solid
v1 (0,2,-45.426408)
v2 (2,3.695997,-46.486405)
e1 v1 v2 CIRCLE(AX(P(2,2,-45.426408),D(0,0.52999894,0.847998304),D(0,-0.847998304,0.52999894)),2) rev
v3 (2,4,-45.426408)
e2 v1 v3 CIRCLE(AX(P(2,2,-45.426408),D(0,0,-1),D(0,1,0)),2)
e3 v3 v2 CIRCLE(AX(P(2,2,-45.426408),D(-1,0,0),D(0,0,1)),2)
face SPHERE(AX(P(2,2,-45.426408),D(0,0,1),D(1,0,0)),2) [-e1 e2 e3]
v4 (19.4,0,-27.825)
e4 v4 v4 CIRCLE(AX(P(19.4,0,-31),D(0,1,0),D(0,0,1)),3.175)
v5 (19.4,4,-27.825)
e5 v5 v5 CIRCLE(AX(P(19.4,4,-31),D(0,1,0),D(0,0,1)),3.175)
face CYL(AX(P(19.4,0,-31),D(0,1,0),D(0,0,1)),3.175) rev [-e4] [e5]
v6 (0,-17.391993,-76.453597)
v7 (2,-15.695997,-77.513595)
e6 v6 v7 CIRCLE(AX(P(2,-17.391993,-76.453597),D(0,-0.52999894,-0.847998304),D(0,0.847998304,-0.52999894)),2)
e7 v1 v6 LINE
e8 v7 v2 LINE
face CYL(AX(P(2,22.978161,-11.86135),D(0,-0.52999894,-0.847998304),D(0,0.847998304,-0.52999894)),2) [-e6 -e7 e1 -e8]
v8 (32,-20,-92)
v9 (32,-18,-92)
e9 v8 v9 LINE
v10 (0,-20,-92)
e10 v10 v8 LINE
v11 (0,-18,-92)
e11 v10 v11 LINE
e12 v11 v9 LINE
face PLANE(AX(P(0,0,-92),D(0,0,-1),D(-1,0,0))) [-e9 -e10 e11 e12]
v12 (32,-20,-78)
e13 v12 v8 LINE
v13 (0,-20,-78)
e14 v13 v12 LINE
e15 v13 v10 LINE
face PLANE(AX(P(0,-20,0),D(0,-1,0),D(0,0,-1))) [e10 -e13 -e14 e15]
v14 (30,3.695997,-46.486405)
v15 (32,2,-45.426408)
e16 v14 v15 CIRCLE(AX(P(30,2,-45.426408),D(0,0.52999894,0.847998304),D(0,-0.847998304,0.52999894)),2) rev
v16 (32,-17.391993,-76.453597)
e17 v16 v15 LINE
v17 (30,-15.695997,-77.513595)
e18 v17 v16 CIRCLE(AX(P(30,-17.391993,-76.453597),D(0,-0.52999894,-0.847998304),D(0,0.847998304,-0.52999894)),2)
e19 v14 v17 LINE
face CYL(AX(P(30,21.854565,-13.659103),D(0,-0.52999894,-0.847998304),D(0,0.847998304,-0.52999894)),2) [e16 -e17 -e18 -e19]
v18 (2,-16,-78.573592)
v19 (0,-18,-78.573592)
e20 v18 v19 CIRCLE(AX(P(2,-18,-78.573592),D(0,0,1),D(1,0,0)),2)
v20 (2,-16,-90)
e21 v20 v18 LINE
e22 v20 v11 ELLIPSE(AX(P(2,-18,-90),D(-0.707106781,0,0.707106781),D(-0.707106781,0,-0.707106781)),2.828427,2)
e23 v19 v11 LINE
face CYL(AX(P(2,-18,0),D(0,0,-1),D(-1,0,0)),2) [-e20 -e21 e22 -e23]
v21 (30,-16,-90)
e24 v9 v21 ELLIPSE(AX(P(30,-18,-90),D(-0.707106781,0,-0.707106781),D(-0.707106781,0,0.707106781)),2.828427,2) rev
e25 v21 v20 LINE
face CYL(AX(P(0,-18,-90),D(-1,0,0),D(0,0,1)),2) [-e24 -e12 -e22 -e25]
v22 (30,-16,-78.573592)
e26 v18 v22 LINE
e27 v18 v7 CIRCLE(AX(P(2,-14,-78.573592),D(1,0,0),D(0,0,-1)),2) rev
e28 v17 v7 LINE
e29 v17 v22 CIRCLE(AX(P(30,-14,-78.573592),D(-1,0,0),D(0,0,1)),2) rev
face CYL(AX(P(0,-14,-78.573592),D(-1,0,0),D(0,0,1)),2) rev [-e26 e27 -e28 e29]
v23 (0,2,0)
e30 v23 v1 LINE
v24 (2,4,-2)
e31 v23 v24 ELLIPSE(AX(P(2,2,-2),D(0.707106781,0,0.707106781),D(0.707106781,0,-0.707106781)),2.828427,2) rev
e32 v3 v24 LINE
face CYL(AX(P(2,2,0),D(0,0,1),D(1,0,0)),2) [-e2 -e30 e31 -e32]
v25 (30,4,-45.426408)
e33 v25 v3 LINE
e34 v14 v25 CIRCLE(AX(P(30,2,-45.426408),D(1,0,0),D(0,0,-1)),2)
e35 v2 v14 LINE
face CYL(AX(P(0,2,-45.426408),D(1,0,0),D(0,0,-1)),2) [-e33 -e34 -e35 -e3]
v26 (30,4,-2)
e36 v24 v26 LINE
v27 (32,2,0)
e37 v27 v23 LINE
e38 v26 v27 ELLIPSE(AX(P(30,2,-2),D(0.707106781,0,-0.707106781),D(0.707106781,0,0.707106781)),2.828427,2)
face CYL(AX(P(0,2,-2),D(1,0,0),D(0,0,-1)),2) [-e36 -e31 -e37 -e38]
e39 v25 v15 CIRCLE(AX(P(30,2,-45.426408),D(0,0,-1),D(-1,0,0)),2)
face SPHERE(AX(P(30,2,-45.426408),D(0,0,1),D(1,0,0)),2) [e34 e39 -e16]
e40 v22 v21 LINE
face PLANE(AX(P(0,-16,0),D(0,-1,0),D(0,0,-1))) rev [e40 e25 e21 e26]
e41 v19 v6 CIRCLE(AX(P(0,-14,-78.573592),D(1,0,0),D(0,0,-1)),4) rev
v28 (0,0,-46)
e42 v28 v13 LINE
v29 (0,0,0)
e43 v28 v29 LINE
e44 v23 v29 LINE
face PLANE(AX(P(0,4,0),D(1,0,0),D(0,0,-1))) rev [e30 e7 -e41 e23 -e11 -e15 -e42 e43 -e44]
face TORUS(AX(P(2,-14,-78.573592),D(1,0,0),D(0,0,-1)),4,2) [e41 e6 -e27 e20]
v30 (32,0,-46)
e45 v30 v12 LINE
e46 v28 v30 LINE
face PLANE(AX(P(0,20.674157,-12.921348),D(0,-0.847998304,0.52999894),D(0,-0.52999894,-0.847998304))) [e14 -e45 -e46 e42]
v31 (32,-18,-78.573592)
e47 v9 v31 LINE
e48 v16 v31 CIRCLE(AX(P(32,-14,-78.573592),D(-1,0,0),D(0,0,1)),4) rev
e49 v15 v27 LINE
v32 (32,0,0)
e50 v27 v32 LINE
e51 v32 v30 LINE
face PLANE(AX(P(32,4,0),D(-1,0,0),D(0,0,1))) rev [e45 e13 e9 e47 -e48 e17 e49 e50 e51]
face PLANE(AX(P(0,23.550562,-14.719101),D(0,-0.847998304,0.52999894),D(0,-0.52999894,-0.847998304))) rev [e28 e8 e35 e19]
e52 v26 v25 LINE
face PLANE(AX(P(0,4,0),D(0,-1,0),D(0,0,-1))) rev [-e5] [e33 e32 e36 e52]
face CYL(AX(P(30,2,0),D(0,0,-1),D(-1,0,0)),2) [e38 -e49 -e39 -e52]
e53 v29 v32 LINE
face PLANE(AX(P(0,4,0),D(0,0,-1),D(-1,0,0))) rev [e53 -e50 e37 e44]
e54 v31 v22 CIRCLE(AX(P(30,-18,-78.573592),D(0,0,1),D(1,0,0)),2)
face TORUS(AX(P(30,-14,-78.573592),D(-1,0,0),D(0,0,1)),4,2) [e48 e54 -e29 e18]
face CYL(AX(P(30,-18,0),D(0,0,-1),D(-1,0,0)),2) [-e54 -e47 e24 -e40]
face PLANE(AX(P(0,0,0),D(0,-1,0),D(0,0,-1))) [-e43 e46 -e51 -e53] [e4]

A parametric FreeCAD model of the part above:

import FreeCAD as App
import Part
import Sketcher


def edges_at(feature, points):
    """Names of the edges that pass closest to the given points."""
    edges = feature.Shape.Edges
    near = lambda p: min(range(len(edges)), key=lambda i: edges[i].distToShape(Part.Vertex(*p))[0])
    return sorted({f"Edge{near(p) + 1}" for p in points})


def add_polygon(sketch, points):
    """Adds a closed chain of lines whose ends are joined by coincident constraints."""
    first, n = sketch.GeometryCount, len(points)
    for a, b in zip(points, points[1:] + points[:1]):
        sketch.addGeometry(Part.LineSegment(App.Vector(*a, 0), App.Vector(*b, 0)), False)
    for i in range(n):
        sketch.addConstraint(Sketcher.Constraint("Coincident", first + i, 2, first + (i + 1) % n, 1))

doc = App.newDocument("Part")
body = doc.addObject("PartDesign::Body", "Body")

sketch1 = body.newObject("Sketcher::SketchObject", "Sketch")
sketch1.AttachmentSupport = (doc.getObject("XZ_Plane"), [""])
sketch1.MapMode = "FlatFace"
add_polygon(sketch1, [(0, -92), (0, 0), (32, 0), (32, -92)])
sketch1.addConstraint(Sketcher.Constraint("Vertical", 0))
sketch1.addConstraint(Sketcher.Constraint("Horizontal", 1))
sketch1.addConstraint(Sketcher.Constraint("Vertical", 2))
sketch1.addConstraint(Sketcher.Constraint("Horizontal", 3))
sketch1.addConstraint(Sketcher.Constraint("Coincident", 0, 2, -1, 1))
sketch1.addConstraint(Sketcher.Constraint("DistanceX", 1, 1, 1, 2, 32.0))
sketch1.addConstraint(Sketcher.Constraint("DistanceY", 0, 1, 0, 2, 92.0))
pad1 = body.newObject("PartDesign::Pad", "Pad")
pad1.Profile = sketch1
pad1.Length = 4
pad1.Reversed = True

sketch2 = body.newObject("Sketcher::SketchObject", "Sketch001")
sketch2.AttachmentSupport = (doc.getObject("XZ_Plane"), [""])
sketch2.MapMode = "FlatFace"
sketch2.AttachmentOffset = App.Placement(App.Vector(0, 0, -4), App.Rotation())
sketch2.addGeometry(Part.Circle(App.Vector(19.4, -31, 0), App.Vector(0, 0, 1), 3.2), False)
sketch2.addConstraint(Sketcher.Constraint("Diameter", 0, 6.35))
sketch2.addConstraint(Sketcher.Constraint("DistanceY", 0, 3, -1, 1, 31.0))
sketch2.addConstraint(Sketcher.Constraint("DistanceX", -1, 1, 0, 3, 19.4))
pocket1 = body.newObject("PartDesign::Pocket", "Pocket")
pocket1.Profile = sketch2
pocket1.Length = 4
pocket1.Reversed = True

sketch3 = body.newObject("Sketcher::SketchObject", "Sketch002")
sketch3.AttachmentSupport = (doc.getObject("YZ_Plane"), [""])
sketch3.MapMode = "FlatFace"
sketch3.AttachmentOffset = App.Placement(App.Vector(0, 0, 32), App.Rotation())
add_polygon(sketch3, [(0, -46), (-20, -78), (-20, -92), (-16, -92), (-16, -78), (4, -46)])
sketch3.addConstraint(Sketcher.Constraint("Vertical", 1))
sketch3.addConstraint(Sketcher.Constraint("Horizontal", 2))
sketch3.addConstraint(Sketcher.Constraint("Vertical", 3))
sketch3.addConstraint(Sketcher.Constraint("Horizontal", 5))
sketch3.addConstraint(Sketcher.Constraint("PointOnObject", 5, 2, -2))
sketch3.addConstraint(Sketcher.Constraint("Parallel", 0, 4))
sketch3.addConstraint(Sketcher.Constraint("Horizontal", 0, 2, 3, 2))
sketch3.addConstraint(Sketcher.Constraint("DistanceX", 2, 1, 2, 2, 4.0))
sketch3.addConstraint(Sketcher.Constraint("DistanceY", 1, 2, 1, 1, 14.0))
sketch3.addConstraint(Sketcher.Constraint("DistanceX", 0, 2, -1, 1, 20.0))
sketch3.addConstraint(Sketcher.Constraint("DistanceY", 0, 2, -1, 1, 78.0))
sketch3.addConstraint(Sketcher.Constraint("DistanceY", 4, 2, -1, 1, 46.0))
pad2 = body.newObject("PartDesign::Pad", "Pad001")
pad2.Profile = sketch3
pad2.Length = 32
pad2.Reversed = True

sketch4 = body.newObject("Sketcher::SketchObject", "Sketch003")
sketch4.AttachmentSupport = (doc.getObject("YZ_Plane"), [""])
sketch4.MapMode = "FlatFace"
sketch4.AttachmentOffset = App.Placement(App.Vector(0, 0, 32), App.Rotation())
add_polygon(sketch4, [(4, -46), (0, -52.4), (0, -92), (4, -92)])
sketch4.addConstraint(Sketcher.Constraint("Vertical", 1))
sketch4.addConstraint(Sketcher.Constraint("Horizontal", 2))
sketch4.addConstraint(Sketcher.Constraint("Vertical", 3))
sketch4.addConstraint(Sketcher.Constraint("PointOnObject", 0, 2, -2))
sketch4.addConstraint(Sketcher.Constraint("DistanceX", 2, 1, 2, 2, 4.0))
sketch4.addConstraint(Sketcher.Constraint("DistanceY", 3, 1, 3, 2, 46.0))
sketch4.addConstraint(Sketcher.Constraint("DistanceY", 1, 2, 1, 1, 39.6))
sketch4.addConstraint(Sketcher.Constraint("DistanceY", 1, 2, -1, 1, 92.0))
pocket2 = body.newObject("PartDesign::Pocket", "Pocket001")
pocket2.Profile = sketch4
pocket2.Type = "ThroughAll"
doc.recompute()

fillet = body.newObject("PartDesign::Fillet", "Fillet")
fillet.Base = (pocket2, edges_at(pocket2, [
    (32, 4, -23),
    (32, -16, -85),
    (16, -16, -78),
    (16, -16, -92),
    (32, -6, -62),
    (0, -6, -62),
    (0, -16, -85),
    (0, 4, -23),
    (16, 4, -46),
    (16, 4, 0),
]))
fillet.Radius = 2

doc.recompute()
